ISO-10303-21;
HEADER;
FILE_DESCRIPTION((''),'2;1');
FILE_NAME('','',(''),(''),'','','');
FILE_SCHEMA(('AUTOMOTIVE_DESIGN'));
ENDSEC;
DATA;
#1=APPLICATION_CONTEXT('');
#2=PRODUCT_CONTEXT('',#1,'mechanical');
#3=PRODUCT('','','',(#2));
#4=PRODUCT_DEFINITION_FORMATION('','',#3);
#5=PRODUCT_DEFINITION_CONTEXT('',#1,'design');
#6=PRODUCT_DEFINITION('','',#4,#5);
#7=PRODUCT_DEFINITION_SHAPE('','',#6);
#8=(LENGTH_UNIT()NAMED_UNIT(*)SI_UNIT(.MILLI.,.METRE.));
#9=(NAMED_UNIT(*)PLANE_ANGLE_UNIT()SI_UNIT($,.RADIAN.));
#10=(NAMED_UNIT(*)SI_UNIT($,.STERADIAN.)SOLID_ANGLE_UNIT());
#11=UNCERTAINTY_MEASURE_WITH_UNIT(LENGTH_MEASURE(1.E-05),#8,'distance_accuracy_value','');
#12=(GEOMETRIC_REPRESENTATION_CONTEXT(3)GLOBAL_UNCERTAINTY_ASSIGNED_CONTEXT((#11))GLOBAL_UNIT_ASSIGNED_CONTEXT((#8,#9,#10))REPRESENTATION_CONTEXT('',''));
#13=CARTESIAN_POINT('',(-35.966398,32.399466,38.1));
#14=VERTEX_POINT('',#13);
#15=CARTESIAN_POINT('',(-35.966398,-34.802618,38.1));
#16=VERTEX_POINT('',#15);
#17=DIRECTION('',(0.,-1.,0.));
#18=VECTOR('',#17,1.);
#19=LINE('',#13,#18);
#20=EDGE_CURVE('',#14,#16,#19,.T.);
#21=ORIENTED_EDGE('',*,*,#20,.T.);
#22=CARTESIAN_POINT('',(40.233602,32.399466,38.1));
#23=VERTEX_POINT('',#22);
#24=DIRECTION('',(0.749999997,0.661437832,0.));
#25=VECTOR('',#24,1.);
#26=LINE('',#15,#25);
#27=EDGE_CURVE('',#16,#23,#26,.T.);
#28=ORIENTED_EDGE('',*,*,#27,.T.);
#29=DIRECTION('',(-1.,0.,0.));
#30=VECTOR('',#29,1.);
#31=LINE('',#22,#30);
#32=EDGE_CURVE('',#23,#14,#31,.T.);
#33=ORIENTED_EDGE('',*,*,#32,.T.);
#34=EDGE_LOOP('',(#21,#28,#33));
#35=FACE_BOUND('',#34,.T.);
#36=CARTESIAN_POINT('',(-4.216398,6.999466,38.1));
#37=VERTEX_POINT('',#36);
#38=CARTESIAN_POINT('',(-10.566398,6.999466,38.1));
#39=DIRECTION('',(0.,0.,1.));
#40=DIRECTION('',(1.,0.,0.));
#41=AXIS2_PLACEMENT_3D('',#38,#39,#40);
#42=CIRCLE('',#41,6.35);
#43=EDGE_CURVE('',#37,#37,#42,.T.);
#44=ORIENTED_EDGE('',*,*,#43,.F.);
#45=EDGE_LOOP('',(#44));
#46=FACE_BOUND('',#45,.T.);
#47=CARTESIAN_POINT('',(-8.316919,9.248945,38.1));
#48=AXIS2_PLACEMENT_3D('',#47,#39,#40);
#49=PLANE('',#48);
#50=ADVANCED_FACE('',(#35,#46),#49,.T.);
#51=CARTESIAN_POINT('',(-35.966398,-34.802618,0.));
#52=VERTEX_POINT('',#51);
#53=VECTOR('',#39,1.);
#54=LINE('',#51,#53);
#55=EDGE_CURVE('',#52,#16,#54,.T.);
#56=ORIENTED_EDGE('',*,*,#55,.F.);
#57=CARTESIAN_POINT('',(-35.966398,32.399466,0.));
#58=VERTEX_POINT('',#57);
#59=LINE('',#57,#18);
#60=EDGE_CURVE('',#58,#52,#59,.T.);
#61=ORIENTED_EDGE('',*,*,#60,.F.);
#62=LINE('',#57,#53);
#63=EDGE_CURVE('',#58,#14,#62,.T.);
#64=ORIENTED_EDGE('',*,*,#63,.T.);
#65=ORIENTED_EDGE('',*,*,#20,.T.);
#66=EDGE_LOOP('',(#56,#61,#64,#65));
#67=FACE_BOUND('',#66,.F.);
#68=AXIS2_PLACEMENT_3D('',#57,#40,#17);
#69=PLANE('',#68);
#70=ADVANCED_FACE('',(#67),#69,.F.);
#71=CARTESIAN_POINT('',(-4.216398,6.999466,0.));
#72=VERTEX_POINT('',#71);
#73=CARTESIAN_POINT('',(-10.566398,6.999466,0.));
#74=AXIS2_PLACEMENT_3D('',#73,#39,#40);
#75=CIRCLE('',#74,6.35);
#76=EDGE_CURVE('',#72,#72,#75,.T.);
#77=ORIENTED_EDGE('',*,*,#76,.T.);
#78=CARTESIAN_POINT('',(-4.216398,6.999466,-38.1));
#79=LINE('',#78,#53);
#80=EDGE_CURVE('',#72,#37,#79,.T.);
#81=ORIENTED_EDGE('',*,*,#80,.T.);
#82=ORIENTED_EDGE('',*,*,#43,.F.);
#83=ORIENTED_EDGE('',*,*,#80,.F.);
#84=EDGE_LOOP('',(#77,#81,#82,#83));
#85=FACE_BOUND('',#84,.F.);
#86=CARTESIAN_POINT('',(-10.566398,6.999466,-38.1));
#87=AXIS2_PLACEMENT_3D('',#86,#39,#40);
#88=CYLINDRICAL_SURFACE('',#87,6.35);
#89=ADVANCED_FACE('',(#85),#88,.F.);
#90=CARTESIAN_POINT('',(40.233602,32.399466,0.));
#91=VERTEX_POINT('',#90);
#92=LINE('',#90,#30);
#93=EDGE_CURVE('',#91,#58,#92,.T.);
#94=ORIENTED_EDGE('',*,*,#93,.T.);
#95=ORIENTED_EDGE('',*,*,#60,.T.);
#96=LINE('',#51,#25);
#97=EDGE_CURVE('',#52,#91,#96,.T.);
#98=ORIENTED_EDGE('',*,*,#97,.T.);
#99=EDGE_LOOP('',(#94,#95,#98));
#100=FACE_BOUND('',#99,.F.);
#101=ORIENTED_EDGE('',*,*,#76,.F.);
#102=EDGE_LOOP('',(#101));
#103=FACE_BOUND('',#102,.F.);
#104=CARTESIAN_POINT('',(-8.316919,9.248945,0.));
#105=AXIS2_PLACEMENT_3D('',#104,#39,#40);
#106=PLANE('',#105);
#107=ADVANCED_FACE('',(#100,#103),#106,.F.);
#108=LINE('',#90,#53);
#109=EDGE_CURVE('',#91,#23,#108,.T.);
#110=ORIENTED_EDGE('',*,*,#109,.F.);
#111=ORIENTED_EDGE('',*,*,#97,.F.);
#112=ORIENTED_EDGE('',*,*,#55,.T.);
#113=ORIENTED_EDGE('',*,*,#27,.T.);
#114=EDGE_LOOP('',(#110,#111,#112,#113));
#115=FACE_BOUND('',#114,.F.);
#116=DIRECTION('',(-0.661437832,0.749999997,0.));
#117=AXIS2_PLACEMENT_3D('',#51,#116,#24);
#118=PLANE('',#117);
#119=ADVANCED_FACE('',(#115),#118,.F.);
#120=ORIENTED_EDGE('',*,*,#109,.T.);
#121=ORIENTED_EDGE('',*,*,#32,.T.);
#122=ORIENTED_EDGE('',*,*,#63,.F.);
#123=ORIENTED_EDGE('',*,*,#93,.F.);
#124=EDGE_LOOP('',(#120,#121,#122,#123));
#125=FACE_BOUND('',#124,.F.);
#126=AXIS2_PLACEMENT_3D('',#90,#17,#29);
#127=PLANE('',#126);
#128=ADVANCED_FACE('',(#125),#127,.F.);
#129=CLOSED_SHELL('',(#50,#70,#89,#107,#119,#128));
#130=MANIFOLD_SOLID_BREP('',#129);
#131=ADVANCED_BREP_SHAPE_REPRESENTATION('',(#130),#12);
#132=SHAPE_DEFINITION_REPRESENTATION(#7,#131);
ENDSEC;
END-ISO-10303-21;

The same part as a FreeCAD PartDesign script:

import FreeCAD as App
import Part
import Sketcher

V = App.Vector
Q = App.Units.Quantity


def add_polygon(sketch, points):
    """Adds a closed chain of lines whose ends are joined by coincident constraints."""
    first, n = sketch.GeometryCount, len(points)
    for a, b in zip(points, points[1:] + points[:1]):
        sketch.addGeometry(Part.LineSegment(App.Vector(*a, 0), App.Vector(*b, 0)), False)
    for i in range(n):
        sketch.addConstraint(Sketcher.Constraint("Coincident", first + i, 2, first + (i + 1) % n, 1))

doc = App.newDocument("Part")
body = doc.addObject("PartDesign::Body", "Body")

# Sketch on XY plane
sketch1 = doc.addObject("Sketcher::SketchObject", "Sketch")
body.addObject(sketch1)
sketch1.AttachmentSupport = (doc.XY_Plane, [""])
sketch1.MapMode = "FlatFace"
add_polygon(sketch1, [(-36, 32), (-36, -35), (40, 32)])  # lines 0-2
sketch1.addConstraint(Sketcher.Constraint("Vertical", 0))
sketch1.addConstraint(Sketcher.Constraint("Horizontal", 2))
sketch1.addConstraint(Sketcher.Constraint("DistanceX", 2, 2, 2, 1, Q("3 in")))
sketch1.addConstraint(Sketcher.Constraint("Distance", 1, Q("4 in")))
sketch1.addConstraint(Sketcher.Constraint("DistanceX", 0, 2, -1, 1, Q("1.4159999 in")))
sketch1.addConstraint(Sketcher.Constraint("DistanceY", 0, 2, -1, 1, Q("34.802618 mm")))
pad1 = doc.addObject("PartDesign::Pad", "Pad")
body.addObject(pad1)
pad1.Profile = sketch1
pad1.Length = Q("1.5 in")

# Sketch on XY plane
sketch2 = doc.addObject("Sketcher::SketchObject", "Sketch001")
body.addObject(sketch2)
sketch2.AttachmentSupport = (doc.XY_Plane, [""])
sketch2.MapMode = "FlatFace"
sketch2.AttachmentOffset = App.Placement(V(0, 0, 1.5 * 25.4), App.Rotation())
sketch2.addGeometry(Part.Circle(V(-10.6, 7, 0), V(0, 0, 1), 3.2), False)
sketch2.addConstraint(Sketcher.Constraint("Diameter", 0, Q("0.25 in")))
sketch2.addConstraint(Sketcher.Constraint("DistanceX", 0, 3, -1, 1, Q("0.4159999 in")))
sketch2.addConstraint(Sketcher.Constraint("DistanceY", -1, 1, 0, 3, Q("6.999466 mm")))
doc.recompute()
hole = doc.addObject("PartDesign::Hole", "Hole")
body.addObject(hole)
hole.Profile = sketch2
hole.ThreadType = "None"
hole.Diameter = Q("0.25 in")
hole.DepthType = "ThroughAll"
hole.HoleCutType = "Counterbore"
hole.HoleCutDiameter = Q("0.5 in")
hole.HoleCutDepth = Q("3 in")

doc.recompute()
